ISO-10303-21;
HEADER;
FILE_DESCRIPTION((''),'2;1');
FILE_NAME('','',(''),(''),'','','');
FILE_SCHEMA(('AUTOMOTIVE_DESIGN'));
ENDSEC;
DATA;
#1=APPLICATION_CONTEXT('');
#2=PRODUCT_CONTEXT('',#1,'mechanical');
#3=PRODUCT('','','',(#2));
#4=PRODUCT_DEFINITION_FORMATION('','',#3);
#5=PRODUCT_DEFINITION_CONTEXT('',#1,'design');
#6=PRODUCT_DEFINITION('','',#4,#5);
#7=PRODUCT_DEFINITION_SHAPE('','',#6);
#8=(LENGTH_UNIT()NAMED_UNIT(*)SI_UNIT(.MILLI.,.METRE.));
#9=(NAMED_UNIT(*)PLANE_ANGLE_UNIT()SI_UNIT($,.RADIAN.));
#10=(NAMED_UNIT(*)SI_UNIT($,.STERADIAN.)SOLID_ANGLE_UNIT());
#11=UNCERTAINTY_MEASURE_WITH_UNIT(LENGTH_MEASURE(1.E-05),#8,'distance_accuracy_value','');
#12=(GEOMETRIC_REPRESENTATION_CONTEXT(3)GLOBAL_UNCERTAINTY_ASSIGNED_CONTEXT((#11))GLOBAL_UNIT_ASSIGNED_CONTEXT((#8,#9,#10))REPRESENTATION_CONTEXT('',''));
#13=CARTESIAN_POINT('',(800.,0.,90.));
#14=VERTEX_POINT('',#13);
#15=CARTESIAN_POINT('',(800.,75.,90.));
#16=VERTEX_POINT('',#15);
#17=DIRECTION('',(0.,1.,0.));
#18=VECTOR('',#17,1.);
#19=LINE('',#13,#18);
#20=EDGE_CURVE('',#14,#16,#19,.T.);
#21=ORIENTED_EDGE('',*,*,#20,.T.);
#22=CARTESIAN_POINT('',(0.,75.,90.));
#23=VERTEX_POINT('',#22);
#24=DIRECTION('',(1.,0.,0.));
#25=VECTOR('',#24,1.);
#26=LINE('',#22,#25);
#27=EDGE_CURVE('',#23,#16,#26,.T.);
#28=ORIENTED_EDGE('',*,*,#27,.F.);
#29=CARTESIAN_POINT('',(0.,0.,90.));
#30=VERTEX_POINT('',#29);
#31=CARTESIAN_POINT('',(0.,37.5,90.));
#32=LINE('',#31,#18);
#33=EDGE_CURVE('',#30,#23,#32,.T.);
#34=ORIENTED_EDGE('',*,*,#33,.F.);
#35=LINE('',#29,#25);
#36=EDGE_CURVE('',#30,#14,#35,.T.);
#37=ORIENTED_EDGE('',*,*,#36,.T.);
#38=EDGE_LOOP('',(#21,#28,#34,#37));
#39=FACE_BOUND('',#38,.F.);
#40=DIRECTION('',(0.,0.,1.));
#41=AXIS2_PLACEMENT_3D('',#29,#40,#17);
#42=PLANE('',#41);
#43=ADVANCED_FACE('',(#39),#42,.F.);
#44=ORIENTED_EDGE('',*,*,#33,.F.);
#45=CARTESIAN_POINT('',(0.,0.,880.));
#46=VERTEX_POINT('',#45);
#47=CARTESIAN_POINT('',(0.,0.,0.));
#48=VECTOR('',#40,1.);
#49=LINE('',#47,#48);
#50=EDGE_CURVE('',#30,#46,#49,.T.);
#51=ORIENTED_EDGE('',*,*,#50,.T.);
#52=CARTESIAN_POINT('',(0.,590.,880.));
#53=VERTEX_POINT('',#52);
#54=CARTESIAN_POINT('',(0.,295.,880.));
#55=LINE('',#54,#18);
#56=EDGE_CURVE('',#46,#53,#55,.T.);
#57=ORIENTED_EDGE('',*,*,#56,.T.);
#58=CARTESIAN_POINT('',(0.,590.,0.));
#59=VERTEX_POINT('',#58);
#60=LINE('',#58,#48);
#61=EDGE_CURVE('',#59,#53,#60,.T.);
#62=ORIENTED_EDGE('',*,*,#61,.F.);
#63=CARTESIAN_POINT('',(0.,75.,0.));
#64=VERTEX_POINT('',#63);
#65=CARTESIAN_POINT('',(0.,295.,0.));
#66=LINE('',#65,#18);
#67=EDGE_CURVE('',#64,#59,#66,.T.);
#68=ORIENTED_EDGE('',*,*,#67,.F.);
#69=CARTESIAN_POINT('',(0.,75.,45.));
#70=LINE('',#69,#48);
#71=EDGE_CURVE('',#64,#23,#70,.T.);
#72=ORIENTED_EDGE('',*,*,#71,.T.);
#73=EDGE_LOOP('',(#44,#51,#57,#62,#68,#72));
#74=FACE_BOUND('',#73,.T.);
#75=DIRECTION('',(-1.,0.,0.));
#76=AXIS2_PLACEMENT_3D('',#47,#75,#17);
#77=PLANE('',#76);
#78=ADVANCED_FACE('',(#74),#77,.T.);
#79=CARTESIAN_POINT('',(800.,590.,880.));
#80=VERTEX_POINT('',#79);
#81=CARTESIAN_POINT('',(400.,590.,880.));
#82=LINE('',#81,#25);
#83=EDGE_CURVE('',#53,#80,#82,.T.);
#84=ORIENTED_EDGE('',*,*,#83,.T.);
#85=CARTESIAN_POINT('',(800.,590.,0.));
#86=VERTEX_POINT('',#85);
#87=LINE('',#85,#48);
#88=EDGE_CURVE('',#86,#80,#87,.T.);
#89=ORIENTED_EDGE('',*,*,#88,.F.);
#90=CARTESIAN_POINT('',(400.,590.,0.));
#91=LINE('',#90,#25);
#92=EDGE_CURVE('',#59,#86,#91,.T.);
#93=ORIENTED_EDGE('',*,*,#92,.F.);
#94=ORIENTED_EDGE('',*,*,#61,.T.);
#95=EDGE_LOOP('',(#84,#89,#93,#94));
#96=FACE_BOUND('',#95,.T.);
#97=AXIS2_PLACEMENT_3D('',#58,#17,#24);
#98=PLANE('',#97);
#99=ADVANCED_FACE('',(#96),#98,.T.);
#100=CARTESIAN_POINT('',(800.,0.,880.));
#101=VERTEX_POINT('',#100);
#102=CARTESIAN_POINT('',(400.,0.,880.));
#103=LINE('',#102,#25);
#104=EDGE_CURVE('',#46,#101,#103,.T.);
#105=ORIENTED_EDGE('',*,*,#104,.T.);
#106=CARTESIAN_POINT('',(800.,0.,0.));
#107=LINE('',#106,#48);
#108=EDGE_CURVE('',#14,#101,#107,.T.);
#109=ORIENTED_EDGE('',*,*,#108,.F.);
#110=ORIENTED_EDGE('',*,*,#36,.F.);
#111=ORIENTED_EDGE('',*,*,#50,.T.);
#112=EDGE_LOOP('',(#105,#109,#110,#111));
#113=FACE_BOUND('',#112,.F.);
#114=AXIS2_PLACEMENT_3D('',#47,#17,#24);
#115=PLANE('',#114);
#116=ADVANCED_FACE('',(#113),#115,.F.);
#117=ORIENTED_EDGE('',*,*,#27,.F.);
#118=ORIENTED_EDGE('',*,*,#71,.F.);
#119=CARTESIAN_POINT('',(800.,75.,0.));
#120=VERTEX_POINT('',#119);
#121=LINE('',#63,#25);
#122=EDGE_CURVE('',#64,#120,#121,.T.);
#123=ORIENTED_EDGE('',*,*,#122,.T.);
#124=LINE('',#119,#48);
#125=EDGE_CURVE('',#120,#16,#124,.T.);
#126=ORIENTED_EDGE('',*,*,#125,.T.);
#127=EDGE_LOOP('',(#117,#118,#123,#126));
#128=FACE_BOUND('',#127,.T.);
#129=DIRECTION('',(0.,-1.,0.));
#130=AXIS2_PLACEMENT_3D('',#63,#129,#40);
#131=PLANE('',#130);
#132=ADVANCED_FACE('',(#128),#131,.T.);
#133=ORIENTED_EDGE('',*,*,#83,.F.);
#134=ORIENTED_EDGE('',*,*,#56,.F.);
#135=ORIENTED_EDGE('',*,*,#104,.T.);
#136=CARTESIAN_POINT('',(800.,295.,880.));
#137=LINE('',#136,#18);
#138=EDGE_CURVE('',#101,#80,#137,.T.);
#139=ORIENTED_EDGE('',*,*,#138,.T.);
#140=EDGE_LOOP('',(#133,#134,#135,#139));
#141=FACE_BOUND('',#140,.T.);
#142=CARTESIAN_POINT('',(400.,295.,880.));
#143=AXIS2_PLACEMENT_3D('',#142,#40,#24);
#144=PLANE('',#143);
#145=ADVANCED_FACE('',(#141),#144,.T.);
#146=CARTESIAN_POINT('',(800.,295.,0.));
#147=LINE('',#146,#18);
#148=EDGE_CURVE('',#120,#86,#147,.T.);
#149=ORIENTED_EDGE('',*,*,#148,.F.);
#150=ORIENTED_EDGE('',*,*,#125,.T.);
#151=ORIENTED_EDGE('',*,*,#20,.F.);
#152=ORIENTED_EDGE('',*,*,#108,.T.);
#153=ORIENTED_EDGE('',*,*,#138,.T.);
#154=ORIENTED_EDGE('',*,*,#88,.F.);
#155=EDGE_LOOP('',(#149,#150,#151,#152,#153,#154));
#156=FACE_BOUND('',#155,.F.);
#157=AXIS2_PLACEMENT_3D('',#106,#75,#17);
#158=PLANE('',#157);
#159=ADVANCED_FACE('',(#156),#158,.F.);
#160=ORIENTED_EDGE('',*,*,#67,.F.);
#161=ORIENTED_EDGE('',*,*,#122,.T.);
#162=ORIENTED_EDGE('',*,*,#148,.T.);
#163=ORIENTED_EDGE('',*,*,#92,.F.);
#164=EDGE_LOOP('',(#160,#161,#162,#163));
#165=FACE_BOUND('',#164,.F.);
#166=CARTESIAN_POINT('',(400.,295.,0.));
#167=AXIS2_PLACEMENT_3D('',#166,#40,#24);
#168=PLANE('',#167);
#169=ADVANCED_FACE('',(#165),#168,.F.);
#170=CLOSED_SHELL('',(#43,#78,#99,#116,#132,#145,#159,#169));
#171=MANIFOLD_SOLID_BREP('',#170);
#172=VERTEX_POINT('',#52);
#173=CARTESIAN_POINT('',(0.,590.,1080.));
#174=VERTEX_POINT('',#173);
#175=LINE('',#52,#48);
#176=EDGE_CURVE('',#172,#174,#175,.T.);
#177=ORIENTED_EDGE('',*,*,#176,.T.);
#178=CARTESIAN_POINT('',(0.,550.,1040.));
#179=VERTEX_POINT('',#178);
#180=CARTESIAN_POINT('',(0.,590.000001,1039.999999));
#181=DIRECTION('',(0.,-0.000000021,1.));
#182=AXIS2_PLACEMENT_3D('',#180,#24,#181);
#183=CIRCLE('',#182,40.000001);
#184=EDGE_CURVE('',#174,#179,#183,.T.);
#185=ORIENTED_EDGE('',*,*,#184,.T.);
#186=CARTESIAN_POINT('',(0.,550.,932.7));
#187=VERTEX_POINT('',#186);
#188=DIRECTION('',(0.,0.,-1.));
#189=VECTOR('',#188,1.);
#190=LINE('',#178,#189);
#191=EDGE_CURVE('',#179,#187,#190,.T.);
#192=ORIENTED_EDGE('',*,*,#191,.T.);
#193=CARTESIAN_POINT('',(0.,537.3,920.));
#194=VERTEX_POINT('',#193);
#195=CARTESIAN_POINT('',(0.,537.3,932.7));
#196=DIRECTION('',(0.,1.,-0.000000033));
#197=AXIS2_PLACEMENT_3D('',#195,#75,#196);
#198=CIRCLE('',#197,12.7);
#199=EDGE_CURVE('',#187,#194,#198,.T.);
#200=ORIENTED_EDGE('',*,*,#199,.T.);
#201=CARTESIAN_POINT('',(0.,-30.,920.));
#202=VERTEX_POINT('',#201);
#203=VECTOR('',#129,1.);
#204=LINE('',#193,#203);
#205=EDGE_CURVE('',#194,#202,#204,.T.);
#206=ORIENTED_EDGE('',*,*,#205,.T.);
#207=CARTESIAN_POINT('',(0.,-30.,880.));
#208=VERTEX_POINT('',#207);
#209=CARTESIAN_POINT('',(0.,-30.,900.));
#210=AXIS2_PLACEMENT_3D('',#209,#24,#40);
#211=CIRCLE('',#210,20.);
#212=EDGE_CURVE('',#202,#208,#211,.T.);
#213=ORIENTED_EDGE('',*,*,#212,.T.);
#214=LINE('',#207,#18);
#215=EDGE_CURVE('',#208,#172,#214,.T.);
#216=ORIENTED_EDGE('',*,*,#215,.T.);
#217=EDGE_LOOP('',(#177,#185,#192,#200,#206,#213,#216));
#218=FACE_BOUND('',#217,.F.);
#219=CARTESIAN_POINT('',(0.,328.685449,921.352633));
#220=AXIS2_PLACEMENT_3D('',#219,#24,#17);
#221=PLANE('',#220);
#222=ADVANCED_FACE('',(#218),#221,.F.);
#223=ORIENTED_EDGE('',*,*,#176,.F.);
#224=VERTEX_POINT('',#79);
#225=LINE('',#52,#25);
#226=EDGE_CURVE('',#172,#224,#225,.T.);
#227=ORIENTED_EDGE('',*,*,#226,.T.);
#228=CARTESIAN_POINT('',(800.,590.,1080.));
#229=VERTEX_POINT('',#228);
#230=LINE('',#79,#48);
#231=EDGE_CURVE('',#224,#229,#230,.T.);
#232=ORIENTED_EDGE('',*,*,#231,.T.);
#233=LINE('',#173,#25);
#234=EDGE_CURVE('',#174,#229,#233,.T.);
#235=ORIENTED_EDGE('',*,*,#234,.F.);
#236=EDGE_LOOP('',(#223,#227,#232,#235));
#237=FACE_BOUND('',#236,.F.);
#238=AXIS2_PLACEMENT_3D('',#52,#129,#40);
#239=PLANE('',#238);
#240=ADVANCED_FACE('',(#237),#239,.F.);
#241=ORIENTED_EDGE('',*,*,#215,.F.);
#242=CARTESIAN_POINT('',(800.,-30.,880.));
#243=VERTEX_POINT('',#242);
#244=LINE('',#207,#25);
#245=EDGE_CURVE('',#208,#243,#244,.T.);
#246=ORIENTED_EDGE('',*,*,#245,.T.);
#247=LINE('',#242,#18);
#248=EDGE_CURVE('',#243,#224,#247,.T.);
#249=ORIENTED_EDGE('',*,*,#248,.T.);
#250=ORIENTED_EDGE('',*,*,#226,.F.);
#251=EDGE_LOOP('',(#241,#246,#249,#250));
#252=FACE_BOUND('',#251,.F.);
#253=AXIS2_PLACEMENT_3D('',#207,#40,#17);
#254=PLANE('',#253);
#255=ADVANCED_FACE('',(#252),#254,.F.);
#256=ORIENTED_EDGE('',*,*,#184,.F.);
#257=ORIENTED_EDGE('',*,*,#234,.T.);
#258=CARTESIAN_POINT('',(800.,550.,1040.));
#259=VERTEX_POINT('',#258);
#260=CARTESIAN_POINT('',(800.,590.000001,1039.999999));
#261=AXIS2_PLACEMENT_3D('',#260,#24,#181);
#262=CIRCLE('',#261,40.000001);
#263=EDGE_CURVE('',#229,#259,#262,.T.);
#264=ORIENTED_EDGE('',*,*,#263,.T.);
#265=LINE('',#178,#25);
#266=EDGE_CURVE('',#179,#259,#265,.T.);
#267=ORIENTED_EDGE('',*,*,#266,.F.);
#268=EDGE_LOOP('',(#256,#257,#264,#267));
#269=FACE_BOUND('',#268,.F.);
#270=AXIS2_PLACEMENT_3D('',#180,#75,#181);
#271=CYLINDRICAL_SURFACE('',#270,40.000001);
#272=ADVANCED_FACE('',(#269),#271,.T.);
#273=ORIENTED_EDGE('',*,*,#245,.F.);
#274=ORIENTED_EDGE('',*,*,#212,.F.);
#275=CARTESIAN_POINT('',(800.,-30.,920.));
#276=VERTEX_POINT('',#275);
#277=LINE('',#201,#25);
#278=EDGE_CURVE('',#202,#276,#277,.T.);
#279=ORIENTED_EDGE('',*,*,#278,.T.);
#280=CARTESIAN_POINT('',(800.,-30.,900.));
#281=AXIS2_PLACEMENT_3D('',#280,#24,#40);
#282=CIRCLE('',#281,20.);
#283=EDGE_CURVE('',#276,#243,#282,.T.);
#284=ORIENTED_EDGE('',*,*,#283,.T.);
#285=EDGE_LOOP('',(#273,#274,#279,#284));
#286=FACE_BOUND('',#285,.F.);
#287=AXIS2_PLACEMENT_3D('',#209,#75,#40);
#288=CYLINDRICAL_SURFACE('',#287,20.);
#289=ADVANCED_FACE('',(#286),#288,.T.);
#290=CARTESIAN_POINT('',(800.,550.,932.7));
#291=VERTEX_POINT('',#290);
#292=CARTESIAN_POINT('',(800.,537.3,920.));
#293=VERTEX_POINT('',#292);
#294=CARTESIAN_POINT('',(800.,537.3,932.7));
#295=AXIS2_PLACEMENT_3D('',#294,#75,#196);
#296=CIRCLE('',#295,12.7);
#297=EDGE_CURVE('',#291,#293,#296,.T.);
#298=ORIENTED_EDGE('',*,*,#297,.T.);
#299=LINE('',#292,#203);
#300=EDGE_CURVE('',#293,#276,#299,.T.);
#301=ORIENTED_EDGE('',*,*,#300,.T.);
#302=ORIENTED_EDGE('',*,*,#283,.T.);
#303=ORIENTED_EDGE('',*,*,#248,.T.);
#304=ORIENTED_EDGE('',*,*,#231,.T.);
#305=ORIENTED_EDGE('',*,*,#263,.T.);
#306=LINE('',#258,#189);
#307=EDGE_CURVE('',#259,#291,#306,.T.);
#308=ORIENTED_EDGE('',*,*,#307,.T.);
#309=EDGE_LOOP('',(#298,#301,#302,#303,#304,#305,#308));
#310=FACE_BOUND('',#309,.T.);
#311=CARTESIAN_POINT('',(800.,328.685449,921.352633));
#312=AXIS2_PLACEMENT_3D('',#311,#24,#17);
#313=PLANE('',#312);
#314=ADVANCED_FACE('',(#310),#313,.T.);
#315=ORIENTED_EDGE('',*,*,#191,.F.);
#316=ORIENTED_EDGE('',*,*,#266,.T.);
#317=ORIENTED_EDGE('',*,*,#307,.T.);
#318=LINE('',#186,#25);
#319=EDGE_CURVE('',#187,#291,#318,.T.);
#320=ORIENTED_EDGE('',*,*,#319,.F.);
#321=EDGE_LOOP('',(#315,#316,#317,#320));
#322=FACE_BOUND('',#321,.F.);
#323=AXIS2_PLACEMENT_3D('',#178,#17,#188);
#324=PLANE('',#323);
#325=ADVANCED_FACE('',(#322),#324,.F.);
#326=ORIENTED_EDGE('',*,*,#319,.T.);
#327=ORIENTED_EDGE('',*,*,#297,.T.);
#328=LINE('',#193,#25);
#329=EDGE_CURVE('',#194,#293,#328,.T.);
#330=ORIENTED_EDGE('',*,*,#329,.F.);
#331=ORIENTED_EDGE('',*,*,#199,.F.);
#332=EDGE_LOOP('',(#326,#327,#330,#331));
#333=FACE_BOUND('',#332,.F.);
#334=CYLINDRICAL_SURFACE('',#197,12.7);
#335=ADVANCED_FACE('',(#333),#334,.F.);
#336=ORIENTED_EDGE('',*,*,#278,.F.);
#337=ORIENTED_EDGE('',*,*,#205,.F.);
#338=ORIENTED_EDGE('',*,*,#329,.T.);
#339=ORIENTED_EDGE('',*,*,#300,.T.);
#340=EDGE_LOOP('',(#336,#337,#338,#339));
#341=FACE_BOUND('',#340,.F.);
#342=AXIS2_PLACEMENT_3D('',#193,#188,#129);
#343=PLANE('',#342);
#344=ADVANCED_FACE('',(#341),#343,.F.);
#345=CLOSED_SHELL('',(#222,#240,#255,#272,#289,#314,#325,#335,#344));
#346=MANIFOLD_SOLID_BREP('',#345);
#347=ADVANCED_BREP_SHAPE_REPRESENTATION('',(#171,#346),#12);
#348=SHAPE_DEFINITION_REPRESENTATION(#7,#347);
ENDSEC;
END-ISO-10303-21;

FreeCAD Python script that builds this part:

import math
import FreeCAD as App
import Part
import Sketcher
Q = App.Units.Quantity


def add_polygon(sketch, points):
    """Adds a closed chain of lines whose ends are joined by coincident constraints."""
    first, n = sketch.GeometryCount, len(points)
    for a, b in zip(points, points[1:] + points[:1]):
        sketch.addGeometry(Part.LineSegment(App.Vector(*a, 0), App.Vector(*b, 0)), False)
    for i in range(n):
        sketch.addConstraint(Sketcher.Constraint("Coincident", first + i, 2, first + (i + 1) % n, 1))

doc = App.newDocument("Part")
params = doc.addObject("Spreadsheet::Sheet", "Params")
for row, (alias, value) in enumerate([
    ("sketch1_width", "800 mm"),
    ("sketch1_height", "590 mm"),
    ("pad1_length", "880 mm"),
    ("sketch2_width", "75 mm"),
    ("sketch2_height", "90 mm"),
    ("sketch3_radius", "40.000001 mm"),
    ("sketch3_radius2", "20 mm"),
    ("sketch3_radius3", "12.7 mm"),
    ("sketch3_width", "620 mm"),
    ("sketch3_height", "200 mm"),
    ("pad2_length", "800 mm"),
], start=1):
    params.set(f"A{row}", alias)
    params.set(f"B{row}", "=" + value)
    params.setAlias(f"B{row}", alias)

body = doc.addObject("PartDesign::Body", "Body")

# Sketch on XY plane
sketch1 = body.newObject("Sketcher::SketchObject", "Sketch")
sketch1.AttachmentSupport = (doc.getObject("XY_Plane"), [""])
sketch1.MapMode = "FlatFace"
add_polygon(sketch1, [(0, 590), (0, 0), (800, 0), (800, 590)])  # lines 0-3
sketch1.addConstraint([
    Sketcher.Constraint("Vertical", 0),
    Sketcher.Constraint("Horizontal", 1),
    Sketcher.Constraint("Vertical", 2),
    Sketcher.Constraint("Horizontal", 3),
    Sketcher.Constraint("Coincident", 0, 2, -1, 1),
    Sketcher.Constraint("DistanceX", 1, 1, 1, 2, Q("800 mm")),
    Sketcher.Constraint("DistanceY", 0, 2, 0, 1, Q("590 mm")),
])
sketch1.setExpression("Constraints[9]", "Params.sketch1_width")
sketch1.setExpression("Constraints[10]", "Params.sketch1_height")
pad1 = body.newObject("PartDesign::Pad", "Pad")
pad1.Profile = sketch1
pad1.setExpression("Length", "Params.pad1_length")

# Sketch on YZ plane
sketch2 = body.newObject("Sketcher::SketchObject", "Sketch001")
sketch2.AttachmentSupport = (doc.getObject("YZ_Plane"), [""])
sketch2.MapMode = "FlatFace"
add_polygon(sketch2, [(0, 90), (0, 0), (75, 0), (75, 90)])  # lines 0-3
sketch2.addConstraint([
    Sketcher.Constraint("Vertical", 0),
    Sketcher.Constraint("Horizontal", 1),
    Sketcher.Constraint("Vertical", 2),
    Sketcher.Constraint("Horizontal", 3),
    Sketcher.Constraint("Coincident", 0, 2, -1, 1),
    Sketcher.Constraint("DistanceX", 1, 1, 1, 2, Q("75 mm")),
    Sketcher.Constraint("DistanceY", 0, 2, 0, 1, Q("90 mm")),
])
sketch2.setExpression("Constraints[9]", "Params.sketch2_width")
sketch2.setExpression("Constraints[10]", "Params.sketch2_height")
pocket1 = body.newObject("PartDesign::Pocket", "Pocket")
pocket1.Profile = sketch2
pocket1.Type = "ThroughAll"
pocket1.Reversed = True
body2 = doc.addObject("PartDesign::Body", "Body001")

# Sketch on YZ plane
sketch3 = body2.newObject("Sketcher::SketchObject", "Sketch002")
sketch3.AttachmentSupport = (doc.getObject("YZ_Plane001"), [""])
sketch3.MapMode = "FlatFace"
sketch3.addGeometry([
    Part.LineSegment(App.Vector(-30, 880, 0), App.Vector(590, 880, 0)),  # 0
    Part.LineSegment(App.Vector(590, 880, 0), App.Vector(590, 1080, 0)),  # 1
    Part.ArcOfCircle(Part.Circle(App.Vector(590.000001, 1039.999999, 0), App.Vector(0, 0, 1), 40.000001), math.radians(90.000001), math.radians(179.999999)),  # 2
    Part.LineSegment(App.Vector(550, 1040, 0), App.Vector(550, 932.7, 0)),  # 3
    Part.ArcOfCircle(Part.Circle(App.Vector(537.3, 932.7, 0), App.Vector(0, 0, 1), 12.7), math.radians(-89.999998), math.radians(-0.000002)),  # 4
    Part.LineSegment(App.Vector(537.3, 920, 0), App.Vector(-30, 920, 0)),  # 5
    Part.ArcOfCircle(Part.Circle(App.Vector(-30, 900, 0), App.Vector(0, 0, 1), 20), math.radians(90), math.radians(270)),  # 6
], False)
sketch3.addConstraint([
    Sketcher.Constraint("Coincident", 0, 2, 1, 1),
    Sketcher.Constraint("Coincident", 1, 2, 2, 1),
    Sketcher.Constraint("Tangent", 2, 2, 3, 1),
    Sketcher.Constraint("Tangent", 3, 2, 4, 2),
    Sketcher.Constraint("Tangent", 4, 1, 5, 1),
    Sketcher.Constraint("Tangent", 5, 2, 6, 1),
    Sketcher.Constraint("Tangent", 6, 2, 0, 1),
    Sketcher.Constraint("Horizontal", 0),
    Sketcher.Constraint("Vertical", 1),
    Sketcher.Constraint("Vertical", 3),
    Sketcher.Constraint("Horizontal", 5),
    Sketcher.Constraint("Vertical", 2, 3, 0, 2),
    Sketcher.Constraint("Radius", 2, Q("40.000001 mm")),
    Sketcher.Constraint("Radius", 6, Q("20 mm")),
    Sketcher.Constraint("Radius", 4, Q("12.7 mm")),
    Sketcher.Constraint("DistanceX", 0, 1, 0, 2, Q("620 mm")),
    Sketcher.Constraint("DistanceY", 1, 1, 1, 2, Q("200 mm")),
    Sketcher.Constraint("DistanceX", -1, 1, 2, 3, Q("590.000001 mm")),
    Sketcher.Constraint("DistanceY", -1, 1, 2, 3, Q("1039.999999 mm")),
])
sketch3.setExpression("Constraints[12]", "Params.sketch3_radius")
sketch3.setExpression("Constraints[13]", "Params.sketch3_radius2")
sketch3.setExpression("Constraints[14]", "Params.sketch3_radius3")
sketch3.setExpression("Constraints[15]", "Params.sketch3_width")
sketch3.setExpression("Constraints[16]", "Params.sketch3_height")
pad2 = body2.newObject("PartDesign::Pad", "Pad001")
pad2.Profile = sketch3
pad2.setExpression("Length", "Params.pad2_length")

doc.recompute()
